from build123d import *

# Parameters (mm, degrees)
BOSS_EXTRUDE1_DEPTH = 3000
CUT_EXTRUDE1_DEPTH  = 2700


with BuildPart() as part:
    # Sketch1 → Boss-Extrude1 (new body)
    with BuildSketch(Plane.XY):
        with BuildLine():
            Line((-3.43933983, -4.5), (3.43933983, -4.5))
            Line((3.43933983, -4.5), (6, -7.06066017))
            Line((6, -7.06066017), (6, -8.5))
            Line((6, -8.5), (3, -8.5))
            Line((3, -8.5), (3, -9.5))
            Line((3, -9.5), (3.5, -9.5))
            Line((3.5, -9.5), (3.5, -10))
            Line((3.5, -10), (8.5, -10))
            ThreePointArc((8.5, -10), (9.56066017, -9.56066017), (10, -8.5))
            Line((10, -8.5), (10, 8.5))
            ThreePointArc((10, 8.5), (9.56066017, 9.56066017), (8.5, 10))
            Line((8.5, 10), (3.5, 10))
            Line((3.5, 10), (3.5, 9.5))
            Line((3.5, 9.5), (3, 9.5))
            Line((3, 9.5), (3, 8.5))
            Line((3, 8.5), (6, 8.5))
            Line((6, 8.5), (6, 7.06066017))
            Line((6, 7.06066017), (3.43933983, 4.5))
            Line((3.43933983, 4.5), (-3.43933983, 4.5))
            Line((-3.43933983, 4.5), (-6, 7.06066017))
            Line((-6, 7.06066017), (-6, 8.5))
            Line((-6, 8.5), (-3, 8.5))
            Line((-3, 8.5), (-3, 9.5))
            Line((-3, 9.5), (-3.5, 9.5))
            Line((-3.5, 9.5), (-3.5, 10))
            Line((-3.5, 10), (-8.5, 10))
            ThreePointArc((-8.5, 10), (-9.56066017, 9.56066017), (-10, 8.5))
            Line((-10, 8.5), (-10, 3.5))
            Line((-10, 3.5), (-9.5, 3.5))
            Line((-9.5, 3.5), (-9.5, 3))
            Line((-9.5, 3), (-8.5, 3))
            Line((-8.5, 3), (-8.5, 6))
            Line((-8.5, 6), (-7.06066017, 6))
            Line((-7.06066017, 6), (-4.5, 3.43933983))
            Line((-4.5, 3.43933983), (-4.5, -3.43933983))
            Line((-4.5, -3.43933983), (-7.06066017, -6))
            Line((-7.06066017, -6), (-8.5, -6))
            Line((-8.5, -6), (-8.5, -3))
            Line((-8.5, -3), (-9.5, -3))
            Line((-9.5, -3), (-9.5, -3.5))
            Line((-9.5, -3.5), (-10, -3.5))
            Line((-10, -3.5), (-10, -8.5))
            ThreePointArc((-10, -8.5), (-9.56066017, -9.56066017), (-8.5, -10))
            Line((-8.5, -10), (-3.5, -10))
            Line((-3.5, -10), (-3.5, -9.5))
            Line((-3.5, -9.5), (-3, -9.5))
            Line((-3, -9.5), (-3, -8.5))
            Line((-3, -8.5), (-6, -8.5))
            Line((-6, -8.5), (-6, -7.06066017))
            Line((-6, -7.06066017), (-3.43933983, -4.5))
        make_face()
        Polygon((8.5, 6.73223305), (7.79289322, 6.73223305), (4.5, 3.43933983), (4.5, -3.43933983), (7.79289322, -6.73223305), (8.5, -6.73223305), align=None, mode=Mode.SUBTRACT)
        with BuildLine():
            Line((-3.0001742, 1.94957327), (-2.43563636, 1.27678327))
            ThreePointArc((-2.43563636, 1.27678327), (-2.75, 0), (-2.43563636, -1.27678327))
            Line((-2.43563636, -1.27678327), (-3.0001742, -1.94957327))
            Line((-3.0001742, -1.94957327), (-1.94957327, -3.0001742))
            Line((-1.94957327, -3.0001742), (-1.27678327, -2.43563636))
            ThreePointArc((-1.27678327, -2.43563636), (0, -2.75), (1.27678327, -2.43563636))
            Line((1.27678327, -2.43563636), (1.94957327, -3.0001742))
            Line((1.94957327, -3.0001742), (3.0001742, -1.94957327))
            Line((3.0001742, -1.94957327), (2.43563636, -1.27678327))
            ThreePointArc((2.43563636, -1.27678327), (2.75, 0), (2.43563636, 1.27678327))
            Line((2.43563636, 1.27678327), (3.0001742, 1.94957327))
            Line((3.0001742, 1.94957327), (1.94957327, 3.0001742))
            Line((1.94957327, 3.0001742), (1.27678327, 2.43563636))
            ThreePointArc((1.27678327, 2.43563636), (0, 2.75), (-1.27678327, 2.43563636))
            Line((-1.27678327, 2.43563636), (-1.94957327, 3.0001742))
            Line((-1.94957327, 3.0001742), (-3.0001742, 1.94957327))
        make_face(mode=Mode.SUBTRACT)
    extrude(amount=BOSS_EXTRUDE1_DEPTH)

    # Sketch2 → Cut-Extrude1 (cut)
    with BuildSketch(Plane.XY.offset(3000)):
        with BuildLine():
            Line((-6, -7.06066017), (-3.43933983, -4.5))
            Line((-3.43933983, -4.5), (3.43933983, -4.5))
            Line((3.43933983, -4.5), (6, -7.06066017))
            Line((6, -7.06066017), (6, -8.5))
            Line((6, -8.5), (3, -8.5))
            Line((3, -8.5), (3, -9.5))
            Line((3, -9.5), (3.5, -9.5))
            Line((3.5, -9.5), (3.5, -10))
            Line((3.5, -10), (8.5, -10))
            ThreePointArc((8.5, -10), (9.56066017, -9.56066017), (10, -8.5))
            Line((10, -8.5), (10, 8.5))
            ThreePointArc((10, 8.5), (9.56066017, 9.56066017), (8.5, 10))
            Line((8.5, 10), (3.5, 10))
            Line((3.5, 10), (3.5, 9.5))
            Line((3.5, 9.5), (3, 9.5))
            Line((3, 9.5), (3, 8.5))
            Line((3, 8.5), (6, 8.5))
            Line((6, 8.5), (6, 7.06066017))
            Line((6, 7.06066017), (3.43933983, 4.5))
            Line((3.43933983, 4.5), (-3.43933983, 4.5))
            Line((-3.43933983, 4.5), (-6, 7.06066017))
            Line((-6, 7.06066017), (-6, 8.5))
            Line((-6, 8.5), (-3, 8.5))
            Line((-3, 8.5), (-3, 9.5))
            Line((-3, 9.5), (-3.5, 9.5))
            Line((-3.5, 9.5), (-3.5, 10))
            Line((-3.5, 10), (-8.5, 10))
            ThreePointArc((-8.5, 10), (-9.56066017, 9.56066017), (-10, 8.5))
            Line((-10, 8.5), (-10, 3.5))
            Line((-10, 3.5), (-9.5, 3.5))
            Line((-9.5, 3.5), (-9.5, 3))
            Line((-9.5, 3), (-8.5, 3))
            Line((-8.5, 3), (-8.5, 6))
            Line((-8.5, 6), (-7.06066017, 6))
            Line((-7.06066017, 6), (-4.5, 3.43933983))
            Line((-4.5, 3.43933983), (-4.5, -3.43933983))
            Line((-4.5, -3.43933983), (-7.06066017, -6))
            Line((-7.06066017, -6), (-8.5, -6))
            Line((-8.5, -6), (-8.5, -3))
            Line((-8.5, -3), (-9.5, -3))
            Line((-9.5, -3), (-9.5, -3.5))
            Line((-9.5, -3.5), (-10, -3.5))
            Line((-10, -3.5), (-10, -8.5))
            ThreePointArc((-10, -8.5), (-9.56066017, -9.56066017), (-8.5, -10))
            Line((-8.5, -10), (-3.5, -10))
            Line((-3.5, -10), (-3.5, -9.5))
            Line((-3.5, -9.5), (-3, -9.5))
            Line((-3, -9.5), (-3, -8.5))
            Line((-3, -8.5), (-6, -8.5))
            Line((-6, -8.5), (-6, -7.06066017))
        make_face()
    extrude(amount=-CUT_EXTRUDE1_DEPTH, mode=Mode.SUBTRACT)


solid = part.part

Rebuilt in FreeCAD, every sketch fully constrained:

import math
import FreeCAD as App
import Part
import Sketcher

V = App.Vector
Q = App.Units.Quantity

doc = App.newDocument("Part")
body = doc.addObject("PartDesign::Body", "Body")

sketch1 = body.newObject("Sketcher::SketchObject", "Sketch")
sketch1.AttachmentSupport = (doc.getObject("XY_Plane"), [""])
sketch1.MapMode = "FlatFace"
sketch1.addGeometry([
    Part.LineSegment(V(-3.43934, -4.5, 0), V(3.43934, -4.5, 0)),
    Part.LineSegment(V(3.43934, -4.5, 0), V(6, -7.06066, 0)),
    Part.LineSegment(V(6, -7.06066, 0), V(6, -8.5, 0)),
    Part.LineSegment(V(6, -8.5, 0), V(3, -8.5, 0)),
    Part.LineSegment(V(3, -8.5, 0), V(3, -9.5, 0)),
    Part.LineSegment(V(3, -9.5, 0), V(3.5, -9.5, 0)),
    Part.LineSegment(V(3.5, -9.5, 0), V(3.5, -10, 0)),
    Part.LineSegment(V(3.5, -10, 0), V(8.5, -10, 0)),
    Part.ArcOfCircle(Part.Circle(V(8.5, -8.5, 0), V(0, 0, 1), 1.5), math.radians(-90), math.radians(0)),
    Part.LineSegment(V(10, -8.5, 0), V(10, 8.5, 0)),
    Part.ArcOfCircle(Part.Circle(V(8.5, 8.5, 0), V(0, 0, 1), 1.5), math.radians(0), math.radians(90)),
    Part.LineSegment(V(8.5, 10, 0), V(3.5, 10, 0)),
    Part.LineSegment(V(3.5, 10, 0), V(3.5, 9.5, 0)),
    Part.LineSegment(V(3.5, 9.5, 0), V(3, 9.5, 0)),
    Part.LineSegment(V(3, 9.5, 0), V(3, 8.5, 0)),
    Part.LineSegment(V(3, 8.5, 0), V(6, 8.5, 0)),
    Part.LineSegment(V(6, 8.5, 0), V(6, 7.06066, 0)),
    Part.LineSegment(V(6, 7.06066, 0), V(3.43934, 4.5, 0)),
    Part.LineSegment(V(3.43934, 4.5, 0), V(-3.43934, 4.5, 0)),
    Part.LineSegment(V(-3.43934, 4.5, 0), V(-6, 7.06066, 0)),
    Part.LineSegment(V(-6, 7.06066, 0), V(-6, 8.5, 0)),
    Part.LineSegment(V(-6, 8.5, 0), V(-3, 8.5, 0)),
    Part.LineSegment(V(-3, 8.5, 0), V(-3, 9.5, 0)),
    Part.LineSegment(V(-3, 9.5, 0), V(-3.5, 9.5, 0)),
    Part.LineSegment(V(-3.5, 9.5, 0), V(-3.5, 10, 0)),
    Part.LineSegment(V(-3.5, 10, 0), V(-8.5, 10, 0)),
    Part.ArcOfCircle(Part.Circle(V(-8.5, 8.5, 0), V(0, 0, 1), 1.5), math.radians(90), math.radians(180)),
    Part.LineSegment(V(-10, 8.5, 0), V(-10, 3.5, 0)),
    Part.LineSegment(V(-10, 3.5, 0), V(-9.5, 3.5, 0)),
    Part.LineSegment(V(-9.5, 3.5, 0), V(-9.5, 3, 0)),
    Part.LineSegment(V(-9.5, 3, 0), V(-8.5, 3, 0)),
    Part.LineSegment(V(-8.5, 3, 0), V(-8.5, 6, 0)),
    Part.LineSegment(V(-8.5, 6, 0), V(-7.06066, 6, 0)),
    Part.LineSegment(V(-7.06066, 6, 0), V(-4.5, 3.43934, 0)),
    Part.LineSegment(V(-4.5, 3.43934, 0), V(-4.5, -3.43934, 0)),
    Part.LineSegment(V(-4.5, -3.43934, 0), V(-7.06066, -6, 0)),
    Part.LineSegment(V(-7.06066, -6, 0), V(-8.5, -6, 0)),
    Part.LineSegment(V(-8.5, -6, 0), V(-8.5, -3, 0)),
    Part.LineSegment(V(-8.5, -3, 0), V(-9.5, -3, 0)),
    Part.LineSegment(V(-9.5, -3, 0), V(-9.5, -3.5, 0)),
    Part.LineSegment(V(-9.5, -3.5, 0), V(-10, -3.5, 0)),
    Part.LineSegment(V(-10, -3.5, 0), V(-10, -8.5, 0)),
    Part.ArcOfCircle(Part.Circle(V(-8.5, -8.5, 0), V(0, 0, 1), 1.5), math.radians(-180), math.radians(-90)),
    Part.LineSegment(V(-8.5, -10, 0), V(-3.5, -10, 0)),
    Part.LineSegment(V(-3.5, -10, 0), V(-3.5, -9.5, 0)),
    Part.LineSegment(V(-3.5, -9.5, 0), V(-3, -9.5, 0)),
    Part.LineSegment(V(-3, -9.5, 0), V(-3, -8.5, 0)),
    Part.LineSegment(V(-3, -8.5, 0), V(-6, -8.5, 0)),
    Part.LineSegment(V(-6, -8.5, 0), V(-6, -7.06066, 0)),
    Part.LineSegment(V(-6, -7.06066, 0), V(-3.43934, -4.5, 0)),
    Part.LineSegment(V(-2.435636, 1.276783, 0), V(-3.000174, 1.949573, 0)),
    Part.LineSegment(V(-3.000174, 1.949573, 0), V(-1.949573, 3.000174, 0)),
    Part.LineSegment(V(-1.949573, 3.000174, 0), V(-1.276783, 2.435636, 0)),
    Part.ArcOfCircle(Part.Circle(V(0, 0, 0), V(0, 0, 1), 2.75), math.radians(62.336053), math.radians(117.663947)),
    Part.LineSegment(V(1.276783, 2.435636, 0), V(1.949573, 3.000174, 0)),
    Part.LineSegment(V(1.949573, 3.000174, 0), V(3.000174, 1.949573, 0)),
    Part.LineSegment(V(3.000174, 1.949573, 0), V(2.435636, 1.276783, 0)),
    Part.ArcOfCircle(Part.Circle(V(0, 0, 0), V(0, 0, 1), 2.75), math.radians(-27.663947), math.radians(27.663947)),
    Part.LineSegment(V(2.435636, -1.276783, 0), V(3.000174, -1.949573, 0)),
    Part.LineSegment(V(3.000174, -1.949573, 0), V(1.949573, -3.000174, 0)),
    Part.LineSegment(V(1.949573, -3.000174, 0), V(1.276783, -2.435636, 0)),
    Part.ArcOfCircle(Part.Circle(V(0, 0, 0), V(0, 0, 1), 2.75), math.radians(-117.663947), math.radians(-62.336053)),
    Part.LineSegment(V(-1.276783, -2.435636, 0), V(-1.949573, -3.000174, 0)),
    Part.LineSegment(V(-1.949573, -3.000174, 0), V(-3.000174, -1.949573, 0)),
    Part.LineSegment(V(-3.000174, -1.949573, 0), V(-2.435636, -1.276783, 0)),
    Part.ArcOfCircle(Part.Circle(V(0, 0, 0), V(0, 0, 1), 2.75), math.radians(152.336053), math.radians(207.663947)),
    Part.LineSegment(V(7.792893, 6.732233, 0), V(8.5, 6.732233, 0)),
    Part.LineSegment(V(8.5, 6.732233, 0), V(8.5, -6.732233, 0)),
    Part.LineSegment(V(8.5, -6.732233, 0), V(7.792893, -6.732233, 0)),
    Part.LineSegment(V(7.792893, -6.732233, 0), V(4.5, -3.43934, 0)),
    Part.LineSegment(V(4.5, -3.43934, 0), V(4.5, 3.43934, 0)),
    Part.LineSegment(V(4.5, 3.43934, 0), V(7.792893, 6.732233, 0)),
], False)
sketch1.addConstraint([
    Sketcher.Constraint("Coincident", 0, 2, 1, 1),
    Sketcher.Constraint("Coincident", 1, 2, 2, 1),
    Sketcher.Constraint("Coincident", 2, 2, 3, 1),
    Sketcher.Constraint("Coincident", 3, 2, 4, 1),
    Sketcher.Constraint("Coincident", 4, 2, 5, 1),
    Sketcher.Constraint("Coincident", 5, 2, 6, 1),
    Sketcher.Constraint("Coincident", 6, 2, 7, 1),
    Sketcher.Constraint("Tangent", 7, 2, 8, 1),
    Sketcher.Constraint("Tangent", 8, 2, 9, 1),
    Sketcher.Constraint("Tangent", 9, 2, 10, 1),
    Sketcher.Constraint("Tangent", 10, 2, 11, 1),
    Sketcher.Constraint("Coincident", 11, 2, 12, 1),
    Sketcher.Constraint("Coincident", 12, 2, 13, 1),
    Sketcher.Constraint("Coincident", 13, 2, 14, 1),
    Sketcher.Constraint("Coincident", 14, 2, 15, 1),
    Sketcher.Constraint("Coincident", 15, 2, 16, 1),
    Sketcher.Constraint("Coincident", 16, 2, 17, 1),
    Sketcher.Constraint("Coincident", 17, 2, 18, 1),
    Sketcher.Constraint("Coincident", 18, 2, 19, 1),
    Sketcher.Constraint("Coincident", 19, 2, 20, 1),
    Sketcher.Constraint("Coincident", 20, 2, 21, 1),
    Sketcher.Constraint("Coincident", 21, 2, 22, 1),
    Sketcher.Constraint("Coincident", 22, 2, 23, 1),
    Sketcher.Constraint("Coincident", 23, 2, 24, 1),
    Sketcher.Constraint("Coincident", 24, 2, 25, 1),
    Sketcher.Constraint("Tangent", 25, 2, 26, 1),
    Sketcher.Constraint("Tangent", 26, 2, 27, 1),
    Sketcher.Constraint("Coincident", 27, 2, 28, 1),
    Sketcher.Constraint("Coincident", 28, 2, 29, 1),
    Sketcher.Constraint("Coincident", 29, 2, 30, 1),
    Sketcher.Constraint("Coincident", 30, 2, 31, 1),
    Sketcher.Constraint("Coincident", 31, 2, 32, 1),
    Sketcher.Constraint("Coincident", 32, 2, 33, 1),
    Sketcher.Constraint("Coincident", 33, 2, 34, 1),
    Sketcher.Constraint("Coincident", 34, 2, 35, 1),
    Sketcher.Constraint("Coincident", 35, 2, 36, 1),
    Sketcher.Constraint("Coincident", 36, 2, 37, 1),
    Sketcher.Constraint("Coincident", 37, 2, 38, 1),
    Sketcher.Constraint("Coincident", 38, 2, 39, 1),
    Sketcher.Constraint("Coincident", 39, 2, 40, 1),
    Sketcher.Constraint("Coincident", 40, 2, 41, 1),
    Sketcher.Constraint("Tangent", 41, 2, 42, 1),
    Sketcher.Constraint("Tangent", 42, 2, 43, 1),
    Sketcher.Constraint("Coincident", 43, 2, 44, 1),
    Sketcher.Constraint("Coincident", 44, 2, 45, 1),
    Sketcher.Constraint("Coincident", 45, 2, 46, 1),
    Sketcher.Constraint("Coincident", 46, 2, 47, 1),
    Sketcher.Constraint("Coincident", 47, 2, 48, 1),
    Sketcher.Constraint("Coincident", 48, 2, 49, 1),
    Sketcher.Constraint("Coincident", 49, 2, 0, 1),
    Sketcher.Constraint("Coincident", 50, 2, 51, 1),
    Sketcher.Constraint("Coincident", 51, 2, 52, 1),
    Sketcher.Constraint("Coincident", 52, 2, 53, 2),
    Sketcher.Constraint("Coincident", 53, 1, 54, 1),
    Sketcher.Constraint("Coincident", 54, 2, 55, 1),
    Sketcher.Constraint("Coincident", 55, 2, 56, 1),
    Sketcher.Constraint("Coincident", 56, 2, 57, 2),
    Sketcher.Constraint("Coincident", 57, 1, 58, 1),
    Sketcher.Constraint("Coincident", 58, 2, 59, 1),
    Sketcher.Constraint("Coincident", 59, 2, 60, 1),
    Sketcher.Constraint("Coincident", 60, 2, 61, 2),
    Sketcher.Constraint("Coincident", 61, 1, 62, 1),
    Sketcher.Constraint("Coincident", 62, 2, 63, 1),
    Sketcher.Constraint("Coincident", 63, 2, 64, 1),
    Sketcher.Constraint("Coincident", 64, 2, 65, 2),
    Sketcher.Constraint("Coincident", 65, 1, 50, 1),
    Sketcher.Constraint("Coincident", 66, 2, 67, 1),
    Sketcher.Constraint("Coincident", 67, 2, 68, 1),
    Sketcher.Constraint("Coincident", 68, 2, 69, 1),
    Sketcher.Constraint("Coincident", 69, 2, 70, 1),
    Sketcher.Constraint("Coincident", 70, 2, 71, 1),
    Sketcher.Constraint("Coincident", 71, 2, 66, 1),
    Sketcher.Constraint("Horizontal", 0),
    Sketcher.Constraint("Vertical", 2),
    Sketcher.Constraint("Horizontal", 3),
    Sketcher.Constraint("Vertical", 4),
    Sketcher.Constraint("Horizontal", 5),
    Sketcher.Constraint("Vertical", 6),
    Sketcher.Constraint("Horizontal", 7),
    Sketcher.Constraint("Vertical", 9),
    Sketcher.Constraint("Horizontal", 11),
    Sketcher.Constraint("Vertical", 12),
    Sketcher.Constraint("Horizontal", 13),
    Sketcher.Constraint("Vertical", 14),
    Sketcher.Constraint("Horizontal", 15),
    Sketcher.Constraint("Vertical", 16),
    Sketcher.Constraint("Horizontal", 18),
    Sketcher.Constraint("Vertical", 20),
    Sketcher.Constraint("Horizontal", 21),
    Sketcher.Constraint("Vertical", 22),
    Sketcher.Constraint("Horizontal", 23),
    Sketcher.Constraint("Vertical", 24),
    Sketcher.Constraint("Horizontal", 25),
    Sketcher.Constraint("Vertical", 27),
    Sketcher.Constraint("Horizontal", 28),
    Sketcher.Constraint("Vertical", 29),
    Sketcher.Constraint("Horizontal", 30),
    Sketcher.Constraint("Vertical", 31),
    Sketcher.Constraint("Horizontal", 32),
    Sketcher.Constraint("Vertical", 34),
    Sketcher.Constraint("Horizontal", 36),
    Sketcher.Constraint("Vertical", 37),
    Sketcher.Constraint("Horizontal", 38),
    Sketcher.Constraint("Vertical", 39),
    Sketcher.Constraint("Horizontal", 40),
    Sketcher.Constraint("Vertical", 41),
    Sketcher.Constraint("Horizontal", 43),
    Sketcher.Constraint("Vertical", 44),
    Sketcher.Constraint("Horizontal", 45),
    Sketcher.Constraint("Vertical", 46),
    Sketcher.Constraint("Horizontal", 47),
    Sketcher.Constraint("Vertical", 48),
    Sketcher.Constraint("Horizontal", 66),
    Sketcher.Constraint("Vertical", 67),
    Sketcher.Constraint("Horizontal", 68),
    Sketcher.Constraint("Vertical", 70),
    Sketcher.Constraint("Coincident", 53, 3, -1, 1),
    Sketcher.Constraint("Coincident", 57, 3, -1, 1),
    Sketcher.Constraint("Coincident", 61, 3, -1, 1),
    Sketcher.Constraint("Coincident", 65, 3, -1, 1),
    Sketcher.Constraint("Equal", 8, 10),
    Sketcher.Constraint("Equal", 10, 26),
    Sketcher.Constraint("Equal", 26, 42),
    Sketcher.Constraint("Equal", 53, 57),
    Sketcher.Constraint("Equal", 57, 61),
    Sketcher.Constraint("Equal", 61, 65),
    Sketcher.Constraint("Symmetric", 8, 3, 26, 3, -1, 1),
    Sketcher.Constraint("Symmetric", 10, 3, 42, 3, -1, 1),
    Sketcher.Constraint("Symmetric", 0, 2, 18, 2, -1, 1),
    Sketcher.Constraint("Symmetric", 1, 2, 19, 2, -1, 1),
    Sketcher.Constraint("Symmetric", 3, 2, 21, 2, -1, 1),
    Sketcher.Constraint("Symmetric", 5, 2, 23, 2, -1, 1),
    Sketcher.Constraint("Symmetric", 12, 2, 44, 2, -1, 1),
    Sketcher.Constraint("Symmetric", 14, 2, 46, 2, -1, 1),
    Sketcher.Constraint("Symmetric", 16, 2, 48, 2, -1, 1),
    Sketcher.Constraint("Symmetric", 50, 2, 58, 2, -1, 1),
    Sketcher.Constraint("Symmetric", 51, 2, 59, 2, -1, 1),
    Sketcher.Constraint("Symmetric", 54, 2, 62, 2, -1, 1),
    Sketcher.Constraint("Symmetric", 55, 2, 63, 2, -1, 1),
    Sketcher.Constraint("Symmetric", 33, 2, 69, 2, -1, 1),
    Sketcher.Constraint("Symmetric", 16, 2, 19, 2, -2),
    Sketcher.Constraint("Symmetric", 14, 2, 21, 2, -2),
    Sketcher.Constraint("Symmetric", 12, 2, 23, 2, -2),
    Sketcher.Constraint("Symmetric", 51, 2, 54, 2, -2),
    Sketcher.Constraint("Symmetric", 50, 2, 55, 2, -2),
    Sketcher.Constraint("Symmetric", 32, 2, 35, 2, -1),
    Sketcher.Constraint("Symmetric", 30, 2, 37, 2, -1),
    Sketcher.Constraint("Symmetric", 28, 2, 39, 2, -1),
    Sketcher.Constraint("Symmetric", 68, 2, 71, 2, -1),
    Sketcher.Constraint("Perpendicular", 1, 17),
    Sketcher.Constraint("Parallel", 19, 33),
    Sketcher.Constraint("Perpendicular", 33, 35),
    Sketcher.Constraint("Parallel", 35, 49),
    Sketcher.Constraint("Parallel", 49, 51),
    Sketcher.Constraint("Perpendicular", 50, 54),
    Sketcher.Constraint("Perpendicular", 51, 55),
    Sketcher.Constraint("Perpendicular", 52, 56),
    Sketcher.Constraint("Perpendicular", 54, 58),
    Sketcher.Constraint("Perpendicular", 56, 60),
    Sketcher.Constraint("Perpendicular", 58, 62),
    Sketcher.Constraint("Perpendicular", 60, 64),
    Sketcher.Constraint("Parallel", 63, 69),
    Sketcher.Constraint("Perpendicular", 69, 71),
    Sketcher.Constraint("Horizontal", 10, 3, 26, 3),
    Sketcher.Constraint("Horizontal", 42, 3, 2, 2),
    Sketcher.Constraint("Horizontal", 52, 2, 53, 1),
    Sketcher.Constraint("Vertical", 25, 2, 30, 2),
    Sketcher.Constraint("Vertical", 10, 2, 66, 2),
    Sketcher.Constraint("Equal", 23, 28),
    Sketcher.Constraint("Equal", 36, 2),
    Sketcher.Constraint("Equal", 38, 4),
    Sketcher.Constraint("Equal", 43, 27),
    Sketcher.Constraint("Equal", 24, 29),
    Sketcher.Constraint("Equal", 47, 31),
    Sketcher.Constraint("Equal", 18, 34),
    Sketcher.Constraint("Equal", 19, 33),
    Sketcher.Constraint("Equal", 50, 52),
    Sketcher.Constraint("Radius", 8, Q("1.5 mm")),
    Sketcher.Constraint("DistanceX", 3, 2, 3, 1, Q("3 mm")),
    Sketcher.Constraint("DistanceX", 7, 1, 7, 2, Q("5 mm")),
    Sketcher.Constraint("DistanceX", 30, 1, 30, 2, Q("1 mm")),
    Sketcher.Constraint("DistanceY", 9, 1, 9, 2, Q("17 mm")),
    Sketcher.Constraint("Angle", 50, Q("130 deg")),
    Sketcher.Constraint("Radius", 53, Q("2.75 mm")),
    Sketcher.Constraint("DistanceY", 0, 2, -1, 1, Q("4.5 mm")),
    Sketcher.Constraint("DistanceX", 0, 1, 0, 2, Q("6.87868 mm")),
    Sketcher.Constraint("DistanceX", 66, 1, 66, 2, Q("0.707107 mm")),
    Sketcher.Constraint("Distance", 50, Q("0.878265 mm")),
    Sketcher.Constraint("Distance", 51, Q("1.485774 mm")),
])
pad1 = body.newObject("PartDesign::Pad", "Pad")
pad1.Profile = sketch1
pad1.Length = 3000

sketch2 = body.newObject("Sketcher::SketchObject", "Sketch001")
sketch2.AttachmentSupport = (doc.getObject("XY_Plane"), [""])
sketch2.MapMode = "FlatFace"
sketch2.AttachmentOffset = App.Placement(V(0, 0, 3000), App.Rotation())
sketch2.addGeometry([
    Part.LineSegment(V(-6, -7.06066, 0), V(-3.43934, -4.5, 0)),
    Part.LineSegment(V(-3.43934, -4.5, 0), V(3.43934, -4.5, 0)),
    Part.LineSegment(V(3.43934, -4.5, 0), V(6, -7.06066, 0)),
    Part.LineSegment(V(6, -7.06066, 0), V(6, -8.5, 0)),
    Part.LineSegment(V(6, -8.5, 0), V(3, -8.5, 0)),
    Part.LineSegment(V(3, -8.5, 0), V(3, -9.5, 0)),
    Part.LineSegment(V(3, -9.5, 0), V(3.5, -9.5, 0)),
    Part.LineSegment(V(3.5, -9.5, 0), V(3.5, -10, 0)),
    Part.LineSegment(V(3.5, -10, 0), V(8.5, -10, 0)),
    Part.ArcOfCircle(Part.Circle(V(8.5, -8.5, 0), V(0, 0, 1), 1.5), math.radians(-90), math.radians(0)),
    Part.LineSegment(V(10, -8.5, 0), V(10, 8.5, 0)),
    Part.ArcOfCircle(Part.Circle(V(8.5, 8.5, 0), V(0, 0, 1), 1.5), math.radians(0), math.radians(90)),
    Part.LineSegment(V(8.5, 10, 0), V(3.5, 10, 0)),
    Part.LineSegment(V(3.5, 10, 0), V(3.5, 9.5, 0)),
    Part.LineSegment(V(3.5, 9.5, 0), V(3, 9.5, 0)),
    Part.LineSegment(V(3, 9.5, 0), V(3, 8.5, 0)),
    Part.LineSegment(V(3, 8.5, 0), V(6, 8.5, 0)),
    Part.LineSegment(V(6, 8.5, 0), V(6, 7.06066, 0)),
    Part.LineSegment(V(6, 7.06066, 0), V(3.43934, 4.5, 0)),
    Part.LineSegment(V(3.43934, 4.5, 0), V(-3.43934, 4.5, 0)),
    Part.LineSegment(V(-3.43934, 4.5, 0), V(-6, 7.06066, 0)),
    Part.LineSegment(V(-6, 7.06066, 0), V(-6, 8.5, 0)),
    Part.LineSegment(V(-6, 8.5, 0), V(-3, 8.5, 0)),
    Part.LineSegment(V(-3, 8.5, 0), V(-3, 9.5, 0)),
    Part.LineSegment(V(-3, 9.5, 0), V(-3.5, 9.5, 0)),
    Part.LineSegment(V(-3.5, 9.5, 0), V(-3.5, 10, 0)),
    Part.LineSegment(V(-3.5, 10, 0), V(-8.5, 10, 0)),
    Part.ArcOfCircle(Part.Circle(V(-8.5, 8.5, 0), V(0, 0, 1), 1.5), math.radians(90), math.radians(180)),
    Part.LineSegment(V(-10, 8.5, 0), V(-10, 3.5, 0)),
    Part.LineSegment(V(-10, 3.5, 0), V(-9.5, 3.5, 0)),
    Part.LineSegment(V(-9.5, 3.5, 0), V(-9.5, 3, 0)),
    Part.LineSegment(V(-9.5, 3, 0), V(-8.5, 3, 0)),
    Part.LineSegment(V(-8.5, 3, 0), V(-8.5, 6, 0)),
    Part.LineSegment(V(-8.5, 6, 0), V(-7.06066, 6, 0)),
    Part.LineSegment(V(-7.06066, 6, 0), V(-4.5, 3.43934, 0)),
    Part.LineSegment(V(-4.5, 3.43934, 0), V(-4.5, -3.43934, 0)),
    Part.LineSegment(V(-4.5, -3.43934, 0), V(-7.06066, -6, 0)),
    Part.LineSegment(V(-7.06066, -6, 0), V(-8.5, -6, 0)),
    Part.LineSegment(V(-8.5, -6, 0), V(-8.5, -3, 0)),
    Part.LineSegment(V(-8.5, -3, 0), V(-9.5, -3, 0)),
    Part.LineSegment(V(-9.5, -3, 0), V(-9.5, -3.5, 0)),
    Part.LineSegment(V(-9.5, -3.5, 0), V(-10, -3.5, 0)),
    Part.LineSegment(V(-10, -3.5, 0), V(-10, -8.5, 0)),
    Part.ArcOfCircle(Part.Circle(V(-8.5, -8.5, 0), V(0, 0, 1), 1.5), math.radians(-180), math.radians(-90)),
    Part.LineSegment(V(-8.5, -10, 0), V(-3.5, -10, 0)),
    Part.LineSegment(V(-3.5, -10, 0), V(-3.5, -9.5, 0)),
    Part.LineSegment(V(-3.5, -9.5, 0), V(-3, -9.5, 0)),
    Part.LineSegment(V(-3, -9.5, 0), V(-3, -8.5, 0)),
    Part.LineSegment(V(-3, -8.5, 0), V(-6, -8.5, 0)),
    Part.LineSegment(V(-6, -8.5, 0), V(-6, -7.06066, 0)),
], False)
sketch2.addConstraint([
    Sketcher.Constraint("Coincident", 0, 2, 1, 1),
    Sketcher.Constraint("Coincident", 1, 2, 2, 1),
    Sketcher.Constraint("Coincident", 2, 2, 3, 1),
    Sketcher.Constraint("Coincident", 3, 2, 4, 1),
    Sketcher.Constraint("Coincident", 4, 2, 5, 1),
    Sketcher.Constraint("Coincident", 5, 2, 6, 1),
    Sketcher.Constraint("Coincident", 6, 2, 7, 1),
    Sketcher.Constraint("Coincident", 7, 2, 8, 1),
    Sketcher.Constraint("Tangent", 8, 2, 9, 1),
    Sketcher.Constraint("Tangent", 9, 2, 10, 1),
    Sketcher.Constraint("Tangent", 10, 2, 11, 1),
    Sketcher.Constraint("Tangent", 11, 2, 12, 1),
    Sketcher.Constraint("Coincident", 12, 2, 13, 1),
    Sketcher.Constraint("Coincident", 13, 2, 14, 1),
    Sketcher.Constraint("Coincident", 14, 2, 15, 1),
    Sketcher.Constraint("Coincident", 15, 2, 16, 1),
    Sketcher.Constraint("Coincident", 16, 2, 17, 1),
    Sketcher.Constraint("Coincident", 17, 2, 18, 1),
    Sketcher.Constraint("Coincident", 18, 2, 19, 1),
    Sketcher.Constraint("Coincident", 19, 2, 20, 1),
    Sketcher.Constraint("Coincident", 20, 2, 21, 1),
    Sketcher.Constraint("Coincident", 21, 2, 22, 1),
    Sketcher.Constraint("Coincident", 22, 2, 23, 1),
    Sketcher.Constraint("Coincident", 23, 2, 24, 1),
    Sketcher.Constraint("Coincident", 24, 2, 25, 1),
    Sketcher.Constraint("Coincident", 25, 2, 26, 1),
    Sketcher.Constraint("Tangent", 26, 2, 27, 1),
    Sketcher.Constraint("Tangent", 27, 2, 28, 1),
    Sketcher.Constraint("Coincident", 28, 2, 29, 1),
    Sketcher.Constraint("Coincident", 29, 2, 30, 1),
    Sketcher.Constraint("Coincident", 30, 2, 31, 1),
    Sketcher.Constraint("Coincident", 31, 2, 32, 1),
    Sketcher.Constraint("Coincident", 32, 2, 33, 1),
    Sketcher.Constraint("Coincident", 33, 2, 34, 1),
    Sketcher.Constraint("Coincident", 34, 2, 35, 1),
    Sketcher.Constraint("Coincident", 35, 2, 36, 1),
    Sketcher.Constraint("Coincident", 36, 2, 37, 1),
    Sketcher.Constraint("Coincident", 37, 2, 38, 1),
    Sketcher.Constraint("Coincident", 38, 2, 39, 1),
    Sketcher.Constraint("Coincident", 39, 2, 40, 1),
    Sketcher.Constraint("Coincident", 40, 2, 41, 1),
    Sketcher.Constraint("Coincident", 41, 2, 42, 1),
    Sketcher.Constraint("Tangent", 42, 2, 43, 1),
    Sketcher.Constraint("Tangent", 43, 2, 44, 1),
    Sketcher.Constraint("Coincident", 44, 2, 45, 1),
    Sketcher.Constraint("Coincident", 45, 2, 46, 1),
    Sketcher.Constraint("Coincident", 46, 2, 47, 1),
    Sketcher.Constraint("Coincident", 47, 2, 48, 1),
    Sketcher.Constraint("Coincident", 48, 2, 49, 1),
    Sketcher.Constraint("Coincident", 49, 2, 0, 1),
    Sketcher.Constraint("Horizontal", 1),
    Sketcher.Constraint("Vertical", 3),
    Sketcher.Constraint("Horizontal", 4),
    Sketcher.Constraint("Vertical", 5),
    Sketcher.Constraint("Horizontal", 6),
    Sketcher.Constraint("Vertical", 7),
    Sketcher.Constraint("Horizontal", 8),
    Sketcher.Constraint("Vertical", 10),
    Sketcher.Constraint("Horizontal", 12),
    Sketcher.Constraint("Vertical", 13),
    Sketcher.Constraint("Horizontal", 14),
    Sketcher.Constraint("Vertical", 15),
    Sketcher.Constraint("Horizontal", 16),
    Sketcher.Constraint("Vertical", 17),
    Sketcher.Constraint("Horizontal", 19),
    Sketcher.Constraint("Vertical", 21),
    Sketcher.Constraint("Horizontal", 22),
    Sketcher.Constraint("Vertical", 23),
    Sketcher.Constraint("Horizontal", 24),
    Sketcher.Constraint("Vertical", 25),
    Sketcher.Constraint("Horizontal", 26),
    Sketcher.Constraint("Vertical", 28),
    Sketcher.Constraint("Horizontal", 29),
    Sketcher.Constraint("Vertical", 30),
    Sketcher.Constraint("Horizontal", 31),
    Sketcher.Constraint("Vertical", 32),
    Sketcher.Constraint("Horizontal", 33),
    Sketcher.Constraint("Vertical", 35),
    Sketcher.Constraint("Horizontal", 37),
    Sketcher.Constraint("Vertical", 38),
    Sketcher.Constraint("Horizontal", 39),
    Sketcher.Constraint("Vertical", 40),
    Sketcher.Constraint("Horizontal", 41),
    Sketcher.Constraint("Vertical", 42),
    Sketcher.Constraint("Horizontal", 44),
    Sketcher.Constraint("Vertical", 45),
    Sketcher.Constraint("Horizontal", 46),
    Sketcher.Constraint("Vertical", 47),
    Sketcher.Constraint("Horizontal", 48),
    Sketcher.Constraint("Vertical", 49),
    Sketcher.Constraint("Equal", 9, 11),
    Sketcher.Constraint("Equal", 11, 27),
    Sketcher.Constraint("Equal", 27, 43),
    Sketcher.Constraint("Symmetric", 9, 3, 27, 3, -1, 1),
    Sketcher.Constraint("Symmetric", 11, 3, 43, 3, -1, 1),
    Sketcher.Constraint("Symmetric", 0, 2, 18, 2, -1, 1),
    Sketcher.Constraint("Symmetric", 2, 2, 20, 2, -1, 1),
    Sketcher.Constraint("Symmetric", 4, 2, 22, 2, -1, 1),
    Sketcher.Constraint("Symmetric", 6, 2, 24, 2, -1, 1),
    Sketcher.Constraint("Symmetric", 13, 2, 45, 2, -1, 1),
    Sketcher.Constraint("Symmetric", 15, 2, 47, 2, -1, 1),
    Sketcher.Constraint("Symmetric", 17, 2, 49, 2, -1, 1),
    Sketcher.Constraint("Symmetric", 17, 2, 20, 2, -2),
    Sketcher.Constraint("Symmetric", 15, 2, 22, 2, -2),
    Sketcher.Constraint("Symmetric", 13, 2, 24, 2, -2),
    Sketcher.Constraint("Symmetric", 33, 2, 36, 2, -1),
    Sketcher.Constraint("Symmetric", 31, 2, 38, 2, -1),
    Sketcher.Constraint("Symmetric", 29, 2, 40, 2, -1),
    Sketcher.Constraint("Perpendicular", 0, 2),
    Sketcher.Constraint("Perpendicular", 18, 20),
    Sketcher.Constraint("Parallel", 20, 34),
    Sketcher.Constraint("Perpendicular", 34, 36),
    Sketcher.Constraint("Horizontal", 11, 3, 27, 3),
    Sketcher.Constraint("Horizontal", 43, 3, 3, 2),
    Sketcher.Constraint("Vertical", 1, 2, 18, 2),
    Sketcher.Constraint("Vertical", 26, 2, 31, 2),
    Sketcher.Constraint("Equal", 24, 29),
    Sketcher.Constraint("Equal", 37, 3),
    Sketcher.Constraint("Equal", 39, 5),
    Sketcher.Constraint("Equal", 44, 28),
    Sketcher.Constraint("Equal", 25, 30),
    Sketcher.Constraint("Equal", 48, 32),
    Sketcher.Constraint("Equal", 19, 35),
    Sketcher.Constraint("Equal", 20, 34),
    Sketcher.Constraint("Radius", 9, Q("1.5 mm")),
    Sketcher.Constraint("DistanceX", 4, 2, 4, 1, Q("3 mm")),
    Sketcher.Constraint("DistanceX", 8, 1, 8, 2, Q("5 mm")),
    Sketcher.Constraint("DistanceX", 31, 1, 31, 2, Q("1 mm")),
    Sketcher.Constraint("DistanceY", 10, 1, 10, 2, Q("17 mm")),
    Sketcher.Constraint("DistanceY", 43, 3, 0, 2, Q("4 mm")),
    Sketcher.Constraint("DistanceX", 1, 1, 1, 2, Q("6.87868 mm")),
])
pocket1 = body.newObject("PartDesign::Pocket", "Pocket")
pocket1.Profile = sketch2
pocket1.Length = 2700

doc.recompute()
